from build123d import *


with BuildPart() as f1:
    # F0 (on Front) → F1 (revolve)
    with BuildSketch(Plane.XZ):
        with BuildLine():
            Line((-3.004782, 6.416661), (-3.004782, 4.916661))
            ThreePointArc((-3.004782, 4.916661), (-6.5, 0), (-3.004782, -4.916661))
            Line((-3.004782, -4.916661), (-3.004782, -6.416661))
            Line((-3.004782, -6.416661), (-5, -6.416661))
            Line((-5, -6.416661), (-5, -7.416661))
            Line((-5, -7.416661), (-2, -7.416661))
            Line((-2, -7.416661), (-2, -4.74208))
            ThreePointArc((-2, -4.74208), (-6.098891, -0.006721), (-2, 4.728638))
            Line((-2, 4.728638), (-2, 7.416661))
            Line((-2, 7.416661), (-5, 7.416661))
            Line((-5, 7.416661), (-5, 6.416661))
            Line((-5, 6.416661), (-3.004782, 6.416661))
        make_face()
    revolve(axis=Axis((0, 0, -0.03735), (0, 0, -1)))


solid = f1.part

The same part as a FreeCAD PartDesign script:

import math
import FreeCAD as App
import Part
import Sketcher
from FreeCAD import Vector

doc = App.newDocument("Part")
body = doc.addObject("PartDesign::Body", "Body")

# Sketch on XZ plane
sketch1 = body.newObject("Sketcher::SketchObject", "Sketch")
sketch1.AttachmentSupport = (doc.getObject("XZ_Plane"), [""])
sketch1.MapMode = "FlatFace"
sketch1.addGeometry([
    Part.LineSegment(Vector(-3, 6.4, 0), Vector(-3, 4.9, 0)),  # 0
    Part.ArcOfCircle(Part.Circle(Vector(-1.3, 0, 0), Vector(0, 0, 1), 5.2), math.radians(109), math.radians(251)),  # 1
    Part.LineSegment(Vector(-3, -4.9, 0), Vector(-3, -6.4, 0)),  # 2
    Part.LineSegment(Vector(-3, -6.4, 0), Vector(-5, -6.4, 0)),  # 3
    Part.LineSegment(Vector(-5, -6.4, 0), Vector(-5, -7.4, 0)),  # 4
    Part.LineSegment(Vector(-5, -7.4, 0), Vector(-2, -7.4, 0)),  # 5
    Part.LineSegment(Vector(-2, -7.4, 0), Vector(-2, -4.7, 0)),  # 6
    Part.ArcOfCircle(Part.Circle(Vector(-1.3, 0, 0), Vector(0, 0, 1), 4.8), math.radians(98), math.radians(262)),  # 7
    Part.LineSegment(Vector(-2, 4.7, 0), Vector(-2, 7.4, 0)),  # 8
    Part.LineSegment(Vector(-2, 7.4, 0), Vector(-5, 7.4, 0)),  # 9
    Part.LineSegment(Vector(-5, 7.4, 0), Vector(-5, 6.4, 0)),  # 10
    Part.LineSegment(Vector(-5, 6.4, 0), Vector(-3, 6.4, 0)),  # 11
], False)
sketch1.addConstraint([
    Sketcher.Constraint("Coincident", 0, 2, 1, 1),
    Sketcher.Constraint("Coincident", 1, 2, 2, 1),
    Sketcher.Constraint("Coincident", 2, 2, 3, 1),
    Sketcher.Constraint("Coincident", 3, 2, 4, 1),
    Sketcher.Constraint("Coincident", 4, 2, 5, 1),
    Sketcher.Constraint("Coincident", 5, 2, 6, 1),
    Sketcher.Constraint("Coincident", 6, 2, 7, 2),
    Sketcher.Constraint("Coincident", 7, 1, 8, 1),
    Sketcher.Constraint("Coincident", 8, 2, 9, 1),
    Sketcher.Constraint("Coincident", 9, 2, 10, 1),
    Sketcher.Constraint("Coincident", 10, 2, 11, 1),
    Sketcher.Constraint("Coincident", 11, 2, 0, 1),
    Sketcher.Constraint("Vertical", 0),
    Sketcher.Constraint("Vertical", 2),
    Sketcher.Constraint("Horizontal", 3),
    Sketcher.Constraint("Vertical", 4),
    Sketcher.Constraint("Horizontal", 5),
    Sketcher.Constraint("Vertical", 6),
    Sketcher.Constraint("Vertical", 8),
    Sketcher.Constraint("Horizontal", 9),
    Sketcher.Constraint("Vertical", 10),
    Sketcher.Constraint("Horizontal", 11),
    Sketcher.Constraint("Symmetric", 0, 2, 1, 2, -1),
    Sketcher.Constraint("Symmetric", 5, 2, 8, 2, -1),
    Sketcher.Constraint("Symmetric", 3, 2, 10, 2, -1),
    Sketcher.Constraint("DistanceX", 5, 1, 5, 2, 3.0),
    Sketcher.Constraint("DistanceY", 4, 2, 4, 1, 1.0),
    Sketcher.Constraint("DistanceY", 0, 2, 0, 1, 1.5),
    Sketcher.Constraint("DistanceX", 3, 2, -1, 1, 5.0),
    Sketcher.Constraint("Radius", 1, 5.205699),
    Sketcher.Constraint("Radius", 7, 4.784774),
    Sketcher.Constraint("DistanceY", 6, 1, 6, 2, 2.674581),
    Sketcher.Constraint("DistanceX", 1, 3, -1, 1, 1.294301),
    Sketcher.Constraint("DistanceY", 1, 2, 7, 1, 9.645299),
    Sketcher.Constraint("DistanceX", 3, 2, 3, 1, 1.995218),
])
revolution = body.newObject("PartDesign::Revolution", "Revolution")
revolution.Profile = sketch1
revolution.ReferenceAxis = (sketch1, ["V_Axis"])
revolution.Angle = 360

doc.recompute()
